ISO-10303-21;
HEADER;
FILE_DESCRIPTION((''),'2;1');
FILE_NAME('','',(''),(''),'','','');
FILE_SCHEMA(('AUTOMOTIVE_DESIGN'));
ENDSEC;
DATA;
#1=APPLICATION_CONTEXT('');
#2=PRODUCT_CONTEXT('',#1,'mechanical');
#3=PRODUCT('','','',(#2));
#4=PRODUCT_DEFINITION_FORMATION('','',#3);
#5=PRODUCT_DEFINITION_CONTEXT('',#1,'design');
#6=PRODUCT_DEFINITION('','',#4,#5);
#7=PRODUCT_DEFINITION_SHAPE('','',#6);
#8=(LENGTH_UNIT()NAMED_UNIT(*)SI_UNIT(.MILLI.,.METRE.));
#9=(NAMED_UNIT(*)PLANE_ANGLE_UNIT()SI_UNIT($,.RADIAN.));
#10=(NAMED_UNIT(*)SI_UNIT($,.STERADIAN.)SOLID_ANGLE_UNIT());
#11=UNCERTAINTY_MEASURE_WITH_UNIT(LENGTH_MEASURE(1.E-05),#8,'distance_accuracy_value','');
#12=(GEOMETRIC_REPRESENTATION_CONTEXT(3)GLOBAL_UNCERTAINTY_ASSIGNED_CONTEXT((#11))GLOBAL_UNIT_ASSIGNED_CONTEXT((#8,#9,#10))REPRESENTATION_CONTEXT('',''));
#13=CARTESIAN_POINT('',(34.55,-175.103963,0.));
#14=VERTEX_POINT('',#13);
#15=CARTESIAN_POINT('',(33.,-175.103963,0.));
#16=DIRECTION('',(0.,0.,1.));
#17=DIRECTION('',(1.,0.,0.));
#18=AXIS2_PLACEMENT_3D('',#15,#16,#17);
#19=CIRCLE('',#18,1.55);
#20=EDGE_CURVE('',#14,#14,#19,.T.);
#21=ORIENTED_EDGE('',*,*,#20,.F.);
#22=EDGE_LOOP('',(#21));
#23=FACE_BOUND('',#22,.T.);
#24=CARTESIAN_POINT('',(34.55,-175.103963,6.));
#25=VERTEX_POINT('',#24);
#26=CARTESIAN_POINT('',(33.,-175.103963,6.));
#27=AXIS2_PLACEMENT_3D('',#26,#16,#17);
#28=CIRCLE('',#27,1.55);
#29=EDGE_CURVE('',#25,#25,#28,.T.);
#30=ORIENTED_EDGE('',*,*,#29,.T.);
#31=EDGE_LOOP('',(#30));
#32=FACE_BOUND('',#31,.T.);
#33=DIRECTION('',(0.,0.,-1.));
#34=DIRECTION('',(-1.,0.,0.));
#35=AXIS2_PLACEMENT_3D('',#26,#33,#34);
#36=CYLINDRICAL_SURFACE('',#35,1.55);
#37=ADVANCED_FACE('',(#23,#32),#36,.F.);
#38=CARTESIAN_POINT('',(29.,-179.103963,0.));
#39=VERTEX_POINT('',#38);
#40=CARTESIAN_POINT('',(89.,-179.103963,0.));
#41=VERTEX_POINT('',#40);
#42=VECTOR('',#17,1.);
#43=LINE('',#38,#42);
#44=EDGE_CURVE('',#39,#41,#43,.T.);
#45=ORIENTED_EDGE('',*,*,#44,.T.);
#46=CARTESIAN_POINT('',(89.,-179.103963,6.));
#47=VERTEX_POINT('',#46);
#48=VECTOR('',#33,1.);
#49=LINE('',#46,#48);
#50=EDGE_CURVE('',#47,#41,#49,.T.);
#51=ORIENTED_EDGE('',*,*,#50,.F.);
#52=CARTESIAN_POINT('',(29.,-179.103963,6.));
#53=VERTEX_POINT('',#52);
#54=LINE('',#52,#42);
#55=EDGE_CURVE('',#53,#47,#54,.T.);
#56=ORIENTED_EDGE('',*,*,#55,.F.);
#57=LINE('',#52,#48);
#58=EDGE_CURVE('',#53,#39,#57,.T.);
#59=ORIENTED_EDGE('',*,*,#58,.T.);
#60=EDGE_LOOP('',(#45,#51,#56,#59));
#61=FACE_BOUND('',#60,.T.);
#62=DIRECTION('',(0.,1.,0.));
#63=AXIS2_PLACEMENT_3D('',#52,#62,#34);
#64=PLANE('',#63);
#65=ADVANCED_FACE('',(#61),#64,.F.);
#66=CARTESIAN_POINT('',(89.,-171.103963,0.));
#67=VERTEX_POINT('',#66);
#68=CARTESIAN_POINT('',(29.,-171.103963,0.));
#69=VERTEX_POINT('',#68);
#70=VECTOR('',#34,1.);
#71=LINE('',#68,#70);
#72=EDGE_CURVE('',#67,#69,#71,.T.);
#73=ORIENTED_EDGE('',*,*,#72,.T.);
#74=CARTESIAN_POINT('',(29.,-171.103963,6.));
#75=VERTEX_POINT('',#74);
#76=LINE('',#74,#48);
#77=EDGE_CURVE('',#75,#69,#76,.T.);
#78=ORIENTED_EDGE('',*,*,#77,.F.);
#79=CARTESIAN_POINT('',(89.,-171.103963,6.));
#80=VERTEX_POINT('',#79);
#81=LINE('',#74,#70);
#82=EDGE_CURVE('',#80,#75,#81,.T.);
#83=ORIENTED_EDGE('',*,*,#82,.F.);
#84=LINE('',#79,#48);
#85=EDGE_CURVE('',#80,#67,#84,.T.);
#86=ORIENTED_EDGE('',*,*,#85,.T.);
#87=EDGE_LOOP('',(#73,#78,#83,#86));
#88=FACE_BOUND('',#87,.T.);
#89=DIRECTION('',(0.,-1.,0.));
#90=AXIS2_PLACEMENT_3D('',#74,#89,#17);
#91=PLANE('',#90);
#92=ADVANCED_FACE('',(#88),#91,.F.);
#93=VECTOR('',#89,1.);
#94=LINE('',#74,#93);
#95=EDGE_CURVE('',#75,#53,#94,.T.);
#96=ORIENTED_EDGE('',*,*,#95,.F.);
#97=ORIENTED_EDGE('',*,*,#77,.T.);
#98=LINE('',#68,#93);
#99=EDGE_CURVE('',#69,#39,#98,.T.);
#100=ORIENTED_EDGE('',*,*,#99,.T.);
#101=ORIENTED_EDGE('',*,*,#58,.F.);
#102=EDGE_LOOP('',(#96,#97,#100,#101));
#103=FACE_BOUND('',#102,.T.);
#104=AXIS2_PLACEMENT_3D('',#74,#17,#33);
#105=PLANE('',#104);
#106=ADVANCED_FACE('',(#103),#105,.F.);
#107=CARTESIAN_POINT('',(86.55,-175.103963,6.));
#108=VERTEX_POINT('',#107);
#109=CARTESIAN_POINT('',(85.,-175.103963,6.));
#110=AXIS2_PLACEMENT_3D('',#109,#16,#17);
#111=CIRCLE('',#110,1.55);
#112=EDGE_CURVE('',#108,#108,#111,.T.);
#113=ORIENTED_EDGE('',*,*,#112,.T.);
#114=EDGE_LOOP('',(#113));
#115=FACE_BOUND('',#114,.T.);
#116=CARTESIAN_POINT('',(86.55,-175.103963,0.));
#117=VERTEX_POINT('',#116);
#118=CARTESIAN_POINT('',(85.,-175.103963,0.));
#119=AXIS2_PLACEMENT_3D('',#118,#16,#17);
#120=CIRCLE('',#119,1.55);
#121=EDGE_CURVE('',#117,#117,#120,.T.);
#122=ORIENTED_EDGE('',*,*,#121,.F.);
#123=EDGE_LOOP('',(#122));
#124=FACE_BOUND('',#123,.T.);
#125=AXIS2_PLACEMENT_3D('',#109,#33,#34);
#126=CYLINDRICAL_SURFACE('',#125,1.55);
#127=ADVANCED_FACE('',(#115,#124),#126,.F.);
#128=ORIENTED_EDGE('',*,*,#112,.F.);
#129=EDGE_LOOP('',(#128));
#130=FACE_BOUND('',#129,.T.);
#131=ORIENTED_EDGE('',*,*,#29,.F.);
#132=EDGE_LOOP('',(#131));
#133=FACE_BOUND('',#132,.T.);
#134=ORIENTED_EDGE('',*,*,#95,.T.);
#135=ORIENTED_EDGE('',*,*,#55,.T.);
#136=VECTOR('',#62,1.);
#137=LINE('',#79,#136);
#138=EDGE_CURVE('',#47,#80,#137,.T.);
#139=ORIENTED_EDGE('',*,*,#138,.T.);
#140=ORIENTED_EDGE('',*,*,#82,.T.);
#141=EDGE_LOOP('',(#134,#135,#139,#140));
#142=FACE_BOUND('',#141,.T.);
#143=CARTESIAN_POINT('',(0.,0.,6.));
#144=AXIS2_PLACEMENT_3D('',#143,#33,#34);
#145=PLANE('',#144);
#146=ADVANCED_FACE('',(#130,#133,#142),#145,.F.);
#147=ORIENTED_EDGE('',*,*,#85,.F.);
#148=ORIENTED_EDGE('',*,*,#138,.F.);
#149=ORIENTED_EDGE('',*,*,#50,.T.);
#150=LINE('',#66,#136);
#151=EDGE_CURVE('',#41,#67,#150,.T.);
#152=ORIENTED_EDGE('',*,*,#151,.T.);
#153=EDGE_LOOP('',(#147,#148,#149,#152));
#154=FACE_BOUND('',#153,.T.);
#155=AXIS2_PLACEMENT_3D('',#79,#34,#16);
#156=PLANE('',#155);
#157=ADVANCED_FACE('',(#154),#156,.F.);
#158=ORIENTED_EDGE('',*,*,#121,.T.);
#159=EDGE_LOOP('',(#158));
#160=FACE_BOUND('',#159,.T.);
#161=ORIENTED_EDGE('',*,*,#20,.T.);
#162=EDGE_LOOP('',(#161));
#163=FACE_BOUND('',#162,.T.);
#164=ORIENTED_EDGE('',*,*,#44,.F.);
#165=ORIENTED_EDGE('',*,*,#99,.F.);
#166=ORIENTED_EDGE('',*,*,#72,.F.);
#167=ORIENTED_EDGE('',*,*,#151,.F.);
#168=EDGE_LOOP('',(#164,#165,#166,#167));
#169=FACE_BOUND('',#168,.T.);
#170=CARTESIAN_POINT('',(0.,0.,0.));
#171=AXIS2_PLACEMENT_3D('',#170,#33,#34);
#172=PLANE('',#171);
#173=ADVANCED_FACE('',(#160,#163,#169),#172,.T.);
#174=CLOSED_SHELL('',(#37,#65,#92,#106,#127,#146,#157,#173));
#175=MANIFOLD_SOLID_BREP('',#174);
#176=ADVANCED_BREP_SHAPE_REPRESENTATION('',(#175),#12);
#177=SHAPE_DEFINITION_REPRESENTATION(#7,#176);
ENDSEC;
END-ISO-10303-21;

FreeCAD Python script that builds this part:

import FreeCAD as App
import Part
import Sketcher
from FreeCAD import Vector
Q = App.Units.Quantity

doc = App.newDocument("Part")
params = doc.addObject("Spreadsheet::Sheet", "Params")
for row, (alias, value) in enumerate([
    ("sketch1_diameter", "3.1 mm"),
    ("sketch1_width", "60 mm"),
    ("sketch1_height", "8 mm"),
    ("pad1_length", "6 mm"),
], start=1):
    params.set(f"A{row}", alias)
    params.set(f"B{row}", "=" + value)
    params.setAlias(f"B{row}", alias)

body = doc.addObject("PartDesign::Body", "Body")

# Sketch on XY plane
sketch1 = body.newObject("Sketcher::SketchObject", "Sketch")
sketch1.AttachmentSupport = (doc.getObject("XY_Plane"), [""])
sketch1.MapMode = "FlatFace"
sketch1.addGeometry(Part.LineSegment(Vector(29, -171.1, 0), Vector(29, -179.1, 0)), False)
sketch1.addGeometry(Part.LineSegment(Vector(29, -179.1, 0), Vector(89, -179.1, 0)), False)
sketch1.addGeometry(Part.LineSegment(Vector(89, -179.1, 0), Vector(89, -171.1, 0)), False)
sketch1.addGeometry(Part.LineSegment(Vector(89, -171.1, 0), Vector(29, -171.1, 0)), False)
sketch1.addGeometry(Part.Circle(Vector(33, -175.1, 0), Vector(0, 0, 1), 1.6), False)
sketch1.addGeometry(Part.Circle(Vector(85, -175.1, 0), Vector(0, 0, 1), 1.6), False)
sketch1.addConstraint(Sketcher.Constraint("Coincident", 0, 2, 1, 1))
sketch1.addConstraint(Sketcher.Constraint("Coincident", 1, 2, 2, 1))
sketch1.addConstraint(Sketcher.Constraint("Coincident", 2, 2, 3, 1))
sketch1.addConstraint(Sketcher.Constraint("Coincident", 3, 2, 0, 1))
sketch1.addConstraint(Sketcher.Constraint("Vertical", 0))
sketch1.addConstraint(Sketcher.Constraint("Horizontal", 1))
sketch1.addConstraint(Sketcher.Constraint("Vertical", 2))
sketch1.addConstraint(Sketcher.Constraint("Horizontal", 3))
sketch1.addConstraint(Sketcher.Constraint("Equal", 4, 5))
sketch1.addConstraint(Sketcher.Constraint("Horizontal", 4, 3, 5, 3))
sketch1.addConstraint(Sketcher.Constraint("Diameter", 4, Q("3.1 mm")))
sketch1.addConstraint(Sketcher.Constraint("DistanceX", 1, 1, 1, 2, Q("60 mm")))
sketch1.addConstraint(Sketcher.Constraint("DistanceY", 0, 2, 0, 1, Q("8 mm")))
sketch1.addConstraint(Sketcher.Constraint("DistanceX", -1, 1, 4, 3, Q("33 mm")))
sketch1.addConstraint(Sketcher.Constraint("DistanceX", -1, 1, 5, 3, Q("85 mm")))
sketch1.addConstraint(Sketcher.Constraint("DistanceX", -1, 1, 0, 2, Q("29 mm")))
sketch1.addConstraint(Sketcher.Constraint("DistanceY", 0, 2, 4, 3, Q("4 mm")))
sketch1.addConstraint(Sketcher.Constraint("DistanceY", 4, 3, -1, 1, Q("175.103963 mm")))
sketch1.setExpression("Constraints[10]", "Params.sketch1_diameter")
sketch1.setExpression("Constraints[11]", "Params.sketch1_width")
sketch1.setExpression("Constraints[12]", "Params.sketch1_height")
pad1 = body.newObject("PartDesign::Pad", "Pad")
pad1.Profile = sketch1
pad1.setExpression("Length", "Params.pad1_length")

doc.recompute()
